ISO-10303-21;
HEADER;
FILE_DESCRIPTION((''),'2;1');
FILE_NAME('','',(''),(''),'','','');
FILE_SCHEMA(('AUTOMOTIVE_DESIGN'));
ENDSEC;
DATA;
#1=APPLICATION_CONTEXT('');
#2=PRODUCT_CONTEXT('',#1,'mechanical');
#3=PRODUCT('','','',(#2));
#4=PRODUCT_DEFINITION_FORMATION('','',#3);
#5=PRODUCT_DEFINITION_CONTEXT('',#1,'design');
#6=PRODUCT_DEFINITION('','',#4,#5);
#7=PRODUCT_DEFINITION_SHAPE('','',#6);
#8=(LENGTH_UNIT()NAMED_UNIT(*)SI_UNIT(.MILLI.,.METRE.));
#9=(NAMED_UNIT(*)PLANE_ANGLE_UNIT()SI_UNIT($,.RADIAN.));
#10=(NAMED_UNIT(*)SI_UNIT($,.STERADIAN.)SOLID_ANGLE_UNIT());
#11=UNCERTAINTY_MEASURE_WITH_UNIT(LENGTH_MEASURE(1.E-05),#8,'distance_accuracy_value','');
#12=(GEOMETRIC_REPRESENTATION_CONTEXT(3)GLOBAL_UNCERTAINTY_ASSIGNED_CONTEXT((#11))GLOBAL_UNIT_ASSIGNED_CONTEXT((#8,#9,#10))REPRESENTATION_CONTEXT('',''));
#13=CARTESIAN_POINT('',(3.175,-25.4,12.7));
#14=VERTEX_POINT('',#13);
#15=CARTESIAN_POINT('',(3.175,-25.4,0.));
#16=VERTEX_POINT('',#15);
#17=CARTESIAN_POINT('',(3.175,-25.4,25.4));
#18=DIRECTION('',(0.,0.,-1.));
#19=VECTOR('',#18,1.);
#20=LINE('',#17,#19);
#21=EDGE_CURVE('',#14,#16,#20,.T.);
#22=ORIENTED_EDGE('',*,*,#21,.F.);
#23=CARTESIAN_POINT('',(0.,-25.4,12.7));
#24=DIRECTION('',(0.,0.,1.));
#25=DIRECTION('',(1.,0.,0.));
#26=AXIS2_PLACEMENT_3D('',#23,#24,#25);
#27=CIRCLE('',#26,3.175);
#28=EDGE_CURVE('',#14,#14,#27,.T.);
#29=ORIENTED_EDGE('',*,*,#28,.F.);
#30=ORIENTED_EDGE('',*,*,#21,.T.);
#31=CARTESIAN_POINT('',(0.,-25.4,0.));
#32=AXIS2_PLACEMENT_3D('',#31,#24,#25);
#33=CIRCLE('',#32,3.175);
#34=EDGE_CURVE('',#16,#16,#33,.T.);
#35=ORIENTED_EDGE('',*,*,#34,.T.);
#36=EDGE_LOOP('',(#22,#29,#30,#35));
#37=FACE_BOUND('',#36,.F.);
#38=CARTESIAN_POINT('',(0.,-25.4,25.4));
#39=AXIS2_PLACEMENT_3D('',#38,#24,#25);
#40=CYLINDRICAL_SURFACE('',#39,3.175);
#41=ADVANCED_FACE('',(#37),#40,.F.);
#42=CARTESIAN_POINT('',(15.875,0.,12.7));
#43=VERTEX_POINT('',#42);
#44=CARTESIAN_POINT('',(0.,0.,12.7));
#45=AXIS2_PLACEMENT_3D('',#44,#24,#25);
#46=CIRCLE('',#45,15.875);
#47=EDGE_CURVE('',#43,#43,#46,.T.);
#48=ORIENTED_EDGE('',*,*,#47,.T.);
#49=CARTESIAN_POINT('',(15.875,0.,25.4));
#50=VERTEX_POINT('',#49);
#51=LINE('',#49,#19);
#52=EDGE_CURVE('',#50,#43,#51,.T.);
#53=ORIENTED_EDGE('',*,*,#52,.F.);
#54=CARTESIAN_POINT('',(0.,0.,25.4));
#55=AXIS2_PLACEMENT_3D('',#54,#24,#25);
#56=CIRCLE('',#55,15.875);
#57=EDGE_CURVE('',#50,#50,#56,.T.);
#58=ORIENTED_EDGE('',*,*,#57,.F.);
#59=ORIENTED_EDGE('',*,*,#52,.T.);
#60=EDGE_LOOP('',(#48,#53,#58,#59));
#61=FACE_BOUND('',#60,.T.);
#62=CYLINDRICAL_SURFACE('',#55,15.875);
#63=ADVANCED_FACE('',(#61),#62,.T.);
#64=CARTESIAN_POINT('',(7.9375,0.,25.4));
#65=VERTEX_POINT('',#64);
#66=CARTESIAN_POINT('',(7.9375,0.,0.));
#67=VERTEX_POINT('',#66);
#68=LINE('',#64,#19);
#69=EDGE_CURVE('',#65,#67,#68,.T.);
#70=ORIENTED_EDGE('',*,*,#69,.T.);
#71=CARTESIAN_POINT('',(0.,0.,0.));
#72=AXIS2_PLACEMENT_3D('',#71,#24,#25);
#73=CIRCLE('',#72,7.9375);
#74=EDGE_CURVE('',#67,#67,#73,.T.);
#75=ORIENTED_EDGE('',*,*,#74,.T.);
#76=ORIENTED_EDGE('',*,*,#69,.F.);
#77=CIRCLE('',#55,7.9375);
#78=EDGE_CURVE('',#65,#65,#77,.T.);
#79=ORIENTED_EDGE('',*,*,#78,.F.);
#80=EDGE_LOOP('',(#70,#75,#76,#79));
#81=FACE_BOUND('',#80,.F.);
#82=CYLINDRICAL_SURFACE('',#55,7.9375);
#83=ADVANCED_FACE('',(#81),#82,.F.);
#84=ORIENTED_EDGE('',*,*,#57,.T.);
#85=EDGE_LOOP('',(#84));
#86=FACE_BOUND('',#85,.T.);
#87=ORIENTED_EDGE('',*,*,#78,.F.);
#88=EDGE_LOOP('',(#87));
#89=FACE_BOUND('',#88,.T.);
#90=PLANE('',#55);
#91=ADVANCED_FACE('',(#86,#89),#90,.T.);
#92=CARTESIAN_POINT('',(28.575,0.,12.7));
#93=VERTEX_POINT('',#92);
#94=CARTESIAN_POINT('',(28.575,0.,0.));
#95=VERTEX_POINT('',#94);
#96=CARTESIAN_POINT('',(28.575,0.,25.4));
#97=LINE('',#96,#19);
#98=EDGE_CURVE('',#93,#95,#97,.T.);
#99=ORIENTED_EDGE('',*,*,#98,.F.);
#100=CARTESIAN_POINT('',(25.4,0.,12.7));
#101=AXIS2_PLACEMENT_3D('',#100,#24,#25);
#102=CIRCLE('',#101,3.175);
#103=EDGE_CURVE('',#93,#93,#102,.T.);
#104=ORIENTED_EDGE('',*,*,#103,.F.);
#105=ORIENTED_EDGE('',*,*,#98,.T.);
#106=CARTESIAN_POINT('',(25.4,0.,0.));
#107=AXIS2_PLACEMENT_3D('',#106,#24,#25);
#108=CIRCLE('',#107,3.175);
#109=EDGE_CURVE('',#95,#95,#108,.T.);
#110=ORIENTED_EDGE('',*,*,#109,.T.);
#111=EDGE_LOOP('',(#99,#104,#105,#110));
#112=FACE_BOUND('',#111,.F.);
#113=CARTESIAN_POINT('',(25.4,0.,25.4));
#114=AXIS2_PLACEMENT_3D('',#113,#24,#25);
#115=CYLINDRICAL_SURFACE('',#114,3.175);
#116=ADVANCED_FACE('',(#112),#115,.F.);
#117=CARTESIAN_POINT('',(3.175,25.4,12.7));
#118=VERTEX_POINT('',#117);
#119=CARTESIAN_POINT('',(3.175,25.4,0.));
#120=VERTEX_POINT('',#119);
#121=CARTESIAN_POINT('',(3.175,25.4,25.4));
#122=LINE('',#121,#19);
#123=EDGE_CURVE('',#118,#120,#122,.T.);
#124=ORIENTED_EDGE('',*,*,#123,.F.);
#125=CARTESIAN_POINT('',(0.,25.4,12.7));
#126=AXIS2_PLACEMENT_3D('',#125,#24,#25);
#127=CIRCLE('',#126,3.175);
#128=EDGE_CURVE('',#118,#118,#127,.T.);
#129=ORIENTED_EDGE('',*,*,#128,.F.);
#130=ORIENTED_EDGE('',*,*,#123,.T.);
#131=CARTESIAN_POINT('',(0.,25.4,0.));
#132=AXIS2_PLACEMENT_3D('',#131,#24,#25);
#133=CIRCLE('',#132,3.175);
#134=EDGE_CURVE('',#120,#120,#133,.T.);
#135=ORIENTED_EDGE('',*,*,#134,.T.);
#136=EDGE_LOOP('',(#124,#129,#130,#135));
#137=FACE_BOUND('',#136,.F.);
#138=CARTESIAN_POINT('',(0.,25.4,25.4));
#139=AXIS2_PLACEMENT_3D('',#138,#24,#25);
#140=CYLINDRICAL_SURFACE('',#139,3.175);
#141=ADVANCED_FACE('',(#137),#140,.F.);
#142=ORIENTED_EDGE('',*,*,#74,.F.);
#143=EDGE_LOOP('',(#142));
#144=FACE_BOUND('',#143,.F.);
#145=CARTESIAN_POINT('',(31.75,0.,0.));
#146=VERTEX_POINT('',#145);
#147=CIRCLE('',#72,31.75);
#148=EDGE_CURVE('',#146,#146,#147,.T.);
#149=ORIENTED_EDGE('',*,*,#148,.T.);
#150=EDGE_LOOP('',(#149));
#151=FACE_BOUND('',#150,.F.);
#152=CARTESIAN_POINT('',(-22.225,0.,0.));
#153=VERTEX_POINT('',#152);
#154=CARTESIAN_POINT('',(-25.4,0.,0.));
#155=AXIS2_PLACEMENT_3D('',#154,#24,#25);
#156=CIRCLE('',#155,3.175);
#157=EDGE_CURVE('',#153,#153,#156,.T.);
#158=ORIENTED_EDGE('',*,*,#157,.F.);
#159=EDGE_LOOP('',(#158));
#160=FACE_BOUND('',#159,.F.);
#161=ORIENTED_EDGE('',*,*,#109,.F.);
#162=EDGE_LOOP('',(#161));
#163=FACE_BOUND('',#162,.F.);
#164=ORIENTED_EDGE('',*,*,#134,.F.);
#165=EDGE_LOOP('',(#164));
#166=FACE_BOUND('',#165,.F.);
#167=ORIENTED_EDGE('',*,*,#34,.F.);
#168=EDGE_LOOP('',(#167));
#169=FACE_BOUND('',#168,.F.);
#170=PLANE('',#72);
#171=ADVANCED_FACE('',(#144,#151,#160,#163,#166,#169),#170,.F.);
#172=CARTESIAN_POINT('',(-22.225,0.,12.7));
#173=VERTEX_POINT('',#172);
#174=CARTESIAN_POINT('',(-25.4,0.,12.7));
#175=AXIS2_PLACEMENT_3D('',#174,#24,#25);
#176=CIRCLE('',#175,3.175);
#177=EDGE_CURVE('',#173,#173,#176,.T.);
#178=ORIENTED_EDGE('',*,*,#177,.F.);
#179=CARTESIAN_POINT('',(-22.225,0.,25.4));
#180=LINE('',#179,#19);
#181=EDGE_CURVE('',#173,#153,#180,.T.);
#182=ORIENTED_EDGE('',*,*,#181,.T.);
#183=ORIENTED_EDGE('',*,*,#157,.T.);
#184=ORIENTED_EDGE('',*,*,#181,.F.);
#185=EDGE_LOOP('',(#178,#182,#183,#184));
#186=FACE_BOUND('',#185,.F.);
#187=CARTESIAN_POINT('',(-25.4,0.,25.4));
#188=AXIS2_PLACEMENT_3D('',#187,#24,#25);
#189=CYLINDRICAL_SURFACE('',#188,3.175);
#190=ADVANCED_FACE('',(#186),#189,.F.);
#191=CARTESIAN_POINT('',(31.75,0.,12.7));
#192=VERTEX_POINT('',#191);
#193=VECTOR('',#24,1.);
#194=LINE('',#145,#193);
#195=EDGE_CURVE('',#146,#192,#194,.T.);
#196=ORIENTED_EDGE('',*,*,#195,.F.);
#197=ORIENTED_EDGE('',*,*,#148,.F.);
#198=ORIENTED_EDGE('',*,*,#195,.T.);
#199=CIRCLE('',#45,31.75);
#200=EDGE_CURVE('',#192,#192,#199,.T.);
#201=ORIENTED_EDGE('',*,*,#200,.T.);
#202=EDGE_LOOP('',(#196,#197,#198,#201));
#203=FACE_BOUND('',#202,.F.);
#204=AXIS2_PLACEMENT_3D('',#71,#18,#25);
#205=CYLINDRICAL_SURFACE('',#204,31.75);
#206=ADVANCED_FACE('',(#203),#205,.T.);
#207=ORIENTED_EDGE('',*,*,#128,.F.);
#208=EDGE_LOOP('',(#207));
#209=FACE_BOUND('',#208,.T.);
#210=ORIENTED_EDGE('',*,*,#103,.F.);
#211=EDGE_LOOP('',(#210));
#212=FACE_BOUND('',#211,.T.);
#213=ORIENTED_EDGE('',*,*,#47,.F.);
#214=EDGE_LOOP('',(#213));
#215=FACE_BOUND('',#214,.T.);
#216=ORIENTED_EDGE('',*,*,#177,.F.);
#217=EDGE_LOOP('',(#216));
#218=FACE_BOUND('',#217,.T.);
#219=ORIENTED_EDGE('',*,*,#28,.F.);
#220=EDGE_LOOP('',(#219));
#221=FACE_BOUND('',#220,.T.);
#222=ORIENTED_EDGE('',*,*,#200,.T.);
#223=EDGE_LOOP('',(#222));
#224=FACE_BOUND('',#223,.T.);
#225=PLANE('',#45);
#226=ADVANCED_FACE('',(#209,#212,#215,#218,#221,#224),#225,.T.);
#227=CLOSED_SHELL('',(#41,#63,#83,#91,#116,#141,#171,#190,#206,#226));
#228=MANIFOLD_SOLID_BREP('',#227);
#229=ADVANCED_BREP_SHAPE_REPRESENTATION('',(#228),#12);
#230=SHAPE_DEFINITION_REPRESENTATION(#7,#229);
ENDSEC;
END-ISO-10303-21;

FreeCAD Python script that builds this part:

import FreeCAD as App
import Part
import Sketcher
from FreeCAD import Vector
Q = App.Units.Quantity

doc = App.newDocument("Part")
body = doc.addObject("PartDesign::Body", "Body")

sketch1 = doc.addObject("Sketcher::SketchObject", "Sketch")
body.addObject(sketch1)
sketch1.AttachmentSupport = (doc.XY_Plane, [""])
sketch1.MapMode = "FlatFace"
sketch1.addGeometry(Part.Circle(Vector(0, 0, 0), Vector(0, 0, 1), 32), False)
sketch1.addConstraint([
    Sketcher.Constraint("Coincident", 0, 3, -1, 1),
    Sketcher.Constraint("Diameter", 0, Q("2.5 in")),
])
pad1 = doc.addObject("PartDesign::Pad", "Pad")
body.addObject(pad1)
pad1.Profile = sketch1
pad1.Length = Q("1 in")

sketch2 = doc.addObject("Sketcher::SketchObject", "Sketch001")
body.addObject(sketch2)
sketch2.AttachmentSupport = (doc.XY_Plane, [""])
sketch2.MapMode = "FlatFace"
sketch2.AttachmentOffset = App.Placement(Vector(0, 0, 1 * 25.4), App.Rotation())
sketch2.addGeometry([
    Part.Circle(Vector(0, 0, 0), Vector(0, 0, 1), 32),
    Part.Circle(Vector(0, 0, 0), Vector(0, 0, 1), 16),
], False)
sketch2.addConstraint([
    Sketcher.Constraint("Coincident", 0, 3, -1, 1),
    Sketcher.Constraint("Coincident", 1, 3, -1, 1),
    Sketcher.Constraint("Diameter", 0, Q("2.5 in")),
    Sketcher.Constraint("Diameter", 1, Q("1.25 in")),
])
pocket1 = doc.addObject("PartDesign::Pocket", "Pocket")
body.addObject(pocket1)
pocket1.Profile = sketch2
pocket1.Length = Q("0.5 in")

sketch3 = doc.addObject("Sketcher::SketchObject", "Sketch002")
body.addObject(sketch3)
sketch3.AttachmentSupport = (doc.XY_Plane, [""])
sketch3.MapMode = "FlatFace"
sketch3.AttachmentOffset = App.Placement(Vector(0, 0, 1 * 25.4), App.Rotation())
sketch3.addGeometry([
    Part.Circle(Vector(0, 0, 0), Vector(0, 0, 1), 7.9),
    Part.Circle(Vector(0, 25.4, 0), Vector(0, 0, 1), 3.2),
    Part.Circle(Vector(0, -25.4, 0), Vector(0, 0, 1), 3.2),
    Part.Circle(Vector(25.4, 0, 0), Vector(0, 0, 1), 3.2),
    Part.Circle(Vector(-25.4, 0, 0), Vector(0, 0, 1), 3.2),
], False)
sketch3.addConstraint([
    Sketcher.Constraint("Coincident", 0, 3, -1, 1),
    Sketcher.Constraint("Equal", 1, 2),
    Sketcher.Constraint("Equal", 2, 3),
    Sketcher.Constraint("Equal", 3, 4),
    Sketcher.Constraint("Symmetric", 1, 3, 2, 3, -1, 1),
    Sketcher.Constraint("Symmetric", 3, 3, 4, 3, -1, 1),
    Sketcher.Constraint("PointOnObject", 1, 3, -2),
    Sketcher.Constraint("PointOnObject", 3, 3, -1),
    Sketcher.Constraint("Diameter", 1, Q("0.25 in")),
    Sketcher.Constraint("Diameter", 0, Q("0.625 in")),
    Sketcher.Constraint("DistanceY", -1, 1, 1, 3, Q("1 in")),
    Sketcher.Constraint("DistanceX", -1, 1, 3, 3, Q("1 in")),
])
pocket2 = doc.addObject("PartDesign::Pocket", "Pocket001")
body.addObject(pocket2)
pocket2.Profile = sketch3
pocket2.Type = "ThroughAll"

doc.recompute()
